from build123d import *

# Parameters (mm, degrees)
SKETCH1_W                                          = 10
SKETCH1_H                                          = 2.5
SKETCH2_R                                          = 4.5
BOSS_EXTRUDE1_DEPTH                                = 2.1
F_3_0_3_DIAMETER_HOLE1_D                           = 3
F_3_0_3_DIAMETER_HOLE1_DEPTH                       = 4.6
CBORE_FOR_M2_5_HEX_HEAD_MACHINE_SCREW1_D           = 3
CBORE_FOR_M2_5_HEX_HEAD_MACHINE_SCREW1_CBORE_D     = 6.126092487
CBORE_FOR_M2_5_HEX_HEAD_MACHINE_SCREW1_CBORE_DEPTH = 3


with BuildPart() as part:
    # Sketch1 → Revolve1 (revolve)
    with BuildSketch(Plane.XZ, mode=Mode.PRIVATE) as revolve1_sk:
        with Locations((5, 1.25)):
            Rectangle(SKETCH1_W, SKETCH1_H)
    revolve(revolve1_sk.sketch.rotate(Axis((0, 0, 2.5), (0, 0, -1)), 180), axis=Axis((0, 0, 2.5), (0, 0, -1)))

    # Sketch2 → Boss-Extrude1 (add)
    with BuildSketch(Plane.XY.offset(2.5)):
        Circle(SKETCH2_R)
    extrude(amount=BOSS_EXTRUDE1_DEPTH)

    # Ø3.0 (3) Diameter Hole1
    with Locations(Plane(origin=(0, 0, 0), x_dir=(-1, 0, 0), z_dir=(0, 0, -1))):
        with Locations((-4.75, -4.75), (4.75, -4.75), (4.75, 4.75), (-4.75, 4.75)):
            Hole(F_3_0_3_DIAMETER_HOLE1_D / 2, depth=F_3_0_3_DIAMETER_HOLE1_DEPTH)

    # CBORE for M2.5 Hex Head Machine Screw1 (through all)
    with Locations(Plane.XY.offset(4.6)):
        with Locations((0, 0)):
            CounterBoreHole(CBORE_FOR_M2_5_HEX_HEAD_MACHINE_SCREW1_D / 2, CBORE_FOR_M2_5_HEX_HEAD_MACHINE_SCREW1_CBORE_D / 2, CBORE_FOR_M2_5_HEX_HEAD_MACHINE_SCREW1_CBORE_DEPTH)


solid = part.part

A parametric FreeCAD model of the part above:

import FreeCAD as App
import Part
import Sketcher
Q = App.Units.Quantity

doc = App.newDocument("Part")
body = doc.addObject("PartDesign::Body", "Body")

sketch1 = body.newObject("Sketcher::SketchObject", "Sketch")
sketch1.AttachmentSupport = (doc.getObject("XZ_Plane"), [""])
sketch1.MapMode = "FlatFace"
sketch1.addGeometry(Part.LineSegment(App.Vector(0, 2.5, 0), App.Vector(0, 0, 0)), False)
sketch1.addGeometry(Part.LineSegment(App.Vector(0, 0, 0), App.Vector(10, 0, 0)), False)
sketch1.addGeometry(Part.LineSegment(App.Vector(10, 0, 0), App.Vector(10, 2.5, 0)), False)
sketch1.addGeometry(Part.LineSegment(App.Vector(10, 2.5, 0), App.Vector(0, 2.5, 0)), False)
sketch1.addConstraint(Sketcher.Constraint("Coincident", 0, 2, 1, 1))
sketch1.addConstraint(Sketcher.Constraint("Coincident", 1, 2, 2, 1))
sketch1.addConstraint(Sketcher.Constraint("Coincident", 2, 2, 3, 1))
sketch1.addConstraint(Sketcher.Constraint("Coincident", 3, 2, 0, 1))
sketch1.addConstraint(Sketcher.Constraint("Vertical", 0))
sketch1.addConstraint(Sketcher.Constraint("Horizontal", 1))
sketch1.addConstraint(Sketcher.Constraint("Vertical", 2))
sketch1.addConstraint(Sketcher.Constraint("Horizontal", 3))
sketch1.addConstraint(Sketcher.Constraint("Coincident", 0, 2, -1, 1))
sketch1.addConstraint(Sketcher.Constraint("DistanceX", 1, 1, 1, 2, Q("10 mm")))
sketch1.addConstraint(Sketcher.Constraint("DistanceY", 0, 2, 0, 1, Q("2.5 mm")))
revolution = body.newObject("PartDesign::Revolution", "Revolution")
revolution.Profile = sketch1
revolution.ReferenceAxis = (sketch1, ["V_Axis"])
revolution.Angle = 360

sketch2 = body.newObject("Sketcher::SketchObject", "Sketch001")
sketch2.AttachmentSupport = (doc.getObject("XY_Plane"), [""])
sketch2.MapMode = "FlatFace"
sketch2.AttachmentOffset = App.Placement(App.Vector(0, 0, 2.5), App.Rotation())
sketch2.addGeometry(Part.Circle(App.Vector(0, 0, 0), App.Vector(0, 0, 1), 4.5), False)
sketch2.addConstraint(Sketcher.Constraint("Coincident", 0, 3, -1, 1))
sketch2.addConstraint(Sketcher.Constraint("Diameter", 0, Q("9 mm")))
pad1 = body.newObject("PartDesign::Pad", "Pad")
pad1.Profile = sketch2
pad1.Length = 2.1

sketch3 = body.newObject("Sketcher::SketchObject", "Sketch002")
sketch3.AttachmentSupport = (doc.getObject("XY_Plane"), [""])
sketch3.MapMode = "FlatFace"
sketch3.addGeometry(Part.Circle(App.Vector(4.8, -4.8, 0), App.Vector(0, 0, 1), 1.5), False)
sketch3.addGeometry(Part.Circle(App.Vector(-4.8, -4.8, 0), App.Vector(0, 0, 1), 1.5), False)
sketch3.addGeometry(Part.Circle(App.Vector(-4.8, 4.8, 0), App.Vector(0, 0, 1), 1.5), False)
sketch3.addGeometry(Part.Circle(App.Vector(4.8, 4.8, 0), App.Vector(0, 0, 1), 1.5), False)
sketch3.addConstraint(Sketcher.Constraint("Equal", 0, 1))
sketch3.addConstraint(Sketcher.Constraint("Equal", 1, 2))
sketch3.addConstraint(Sketcher.Constraint("Equal", 2, 3))
sketch3.addConstraint(Sketcher.Constraint("Symmetric", 0, 3, 2, 3, -1, 1))
sketch3.addConstraint(Sketcher.Constraint("Symmetric", 1, 3, 3, 3, -1, 1))
sketch3.addConstraint(Sketcher.Constraint("Symmetric", 0, 3, 1, 3, -2))
sketch3.addConstraint(Sketcher.Constraint("Diameter", 0, Q("3 mm")))
sketch3.addConstraint(Sketcher.Constraint("DistanceX", 1, 3, 0, 3, Q("9.5 mm")))
sketch3.addConstraint(Sketcher.Constraint("DistanceY", 1, 3, 2, 3, Q("9.5 mm")))
doc.recompute()
hole = body.newObject("PartDesign::Hole", "Hole")
hole.Profile = sketch3
hole.ThreadType = "None"
hole.Diameter = 3
hole.DepthType = "Dimension"
hole.Depth = 4.6
hole.DrillPoint = "Flat"
hole.Reversed = True

sketch4 = body.newObject("Sketcher::SketchObject", "Sketch003")
sketch4.AttachmentSupport = (doc.getObject("XY_Plane"), [""])
sketch4.MapMode = "FlatFace"
sketch4.AttachmentOffset = App.Placement(App.Vector(0, 0, 4.6), App.Rotation())
sketch4.addGeometry(Part.Circle(App.Vector(0, 0, 0), App.Vector(0, 0, 1), 1.5), False)
sketch4.addConstraint(Sketcher.Constraint("Coincident", 0, 3, -1, 1))
sketch4.addConstraint(Sketcher.Constraint("Diameter", 0, Q("3 mm")))
doc.recompute()
hole2 = body.newObject("PartDesign::Hole", "Hole001")
hole2.Profile = sketch4
hole2.ThreadType = "None"
hole2.Diameter = 3
hole2.DepthType = "ThroughAll"
hole2.HoleCutType = "Counterbore"
hole2.HoleCutDiameter = 6.126092
hole2.HoleCutDepth = 3

doc.recompute()
